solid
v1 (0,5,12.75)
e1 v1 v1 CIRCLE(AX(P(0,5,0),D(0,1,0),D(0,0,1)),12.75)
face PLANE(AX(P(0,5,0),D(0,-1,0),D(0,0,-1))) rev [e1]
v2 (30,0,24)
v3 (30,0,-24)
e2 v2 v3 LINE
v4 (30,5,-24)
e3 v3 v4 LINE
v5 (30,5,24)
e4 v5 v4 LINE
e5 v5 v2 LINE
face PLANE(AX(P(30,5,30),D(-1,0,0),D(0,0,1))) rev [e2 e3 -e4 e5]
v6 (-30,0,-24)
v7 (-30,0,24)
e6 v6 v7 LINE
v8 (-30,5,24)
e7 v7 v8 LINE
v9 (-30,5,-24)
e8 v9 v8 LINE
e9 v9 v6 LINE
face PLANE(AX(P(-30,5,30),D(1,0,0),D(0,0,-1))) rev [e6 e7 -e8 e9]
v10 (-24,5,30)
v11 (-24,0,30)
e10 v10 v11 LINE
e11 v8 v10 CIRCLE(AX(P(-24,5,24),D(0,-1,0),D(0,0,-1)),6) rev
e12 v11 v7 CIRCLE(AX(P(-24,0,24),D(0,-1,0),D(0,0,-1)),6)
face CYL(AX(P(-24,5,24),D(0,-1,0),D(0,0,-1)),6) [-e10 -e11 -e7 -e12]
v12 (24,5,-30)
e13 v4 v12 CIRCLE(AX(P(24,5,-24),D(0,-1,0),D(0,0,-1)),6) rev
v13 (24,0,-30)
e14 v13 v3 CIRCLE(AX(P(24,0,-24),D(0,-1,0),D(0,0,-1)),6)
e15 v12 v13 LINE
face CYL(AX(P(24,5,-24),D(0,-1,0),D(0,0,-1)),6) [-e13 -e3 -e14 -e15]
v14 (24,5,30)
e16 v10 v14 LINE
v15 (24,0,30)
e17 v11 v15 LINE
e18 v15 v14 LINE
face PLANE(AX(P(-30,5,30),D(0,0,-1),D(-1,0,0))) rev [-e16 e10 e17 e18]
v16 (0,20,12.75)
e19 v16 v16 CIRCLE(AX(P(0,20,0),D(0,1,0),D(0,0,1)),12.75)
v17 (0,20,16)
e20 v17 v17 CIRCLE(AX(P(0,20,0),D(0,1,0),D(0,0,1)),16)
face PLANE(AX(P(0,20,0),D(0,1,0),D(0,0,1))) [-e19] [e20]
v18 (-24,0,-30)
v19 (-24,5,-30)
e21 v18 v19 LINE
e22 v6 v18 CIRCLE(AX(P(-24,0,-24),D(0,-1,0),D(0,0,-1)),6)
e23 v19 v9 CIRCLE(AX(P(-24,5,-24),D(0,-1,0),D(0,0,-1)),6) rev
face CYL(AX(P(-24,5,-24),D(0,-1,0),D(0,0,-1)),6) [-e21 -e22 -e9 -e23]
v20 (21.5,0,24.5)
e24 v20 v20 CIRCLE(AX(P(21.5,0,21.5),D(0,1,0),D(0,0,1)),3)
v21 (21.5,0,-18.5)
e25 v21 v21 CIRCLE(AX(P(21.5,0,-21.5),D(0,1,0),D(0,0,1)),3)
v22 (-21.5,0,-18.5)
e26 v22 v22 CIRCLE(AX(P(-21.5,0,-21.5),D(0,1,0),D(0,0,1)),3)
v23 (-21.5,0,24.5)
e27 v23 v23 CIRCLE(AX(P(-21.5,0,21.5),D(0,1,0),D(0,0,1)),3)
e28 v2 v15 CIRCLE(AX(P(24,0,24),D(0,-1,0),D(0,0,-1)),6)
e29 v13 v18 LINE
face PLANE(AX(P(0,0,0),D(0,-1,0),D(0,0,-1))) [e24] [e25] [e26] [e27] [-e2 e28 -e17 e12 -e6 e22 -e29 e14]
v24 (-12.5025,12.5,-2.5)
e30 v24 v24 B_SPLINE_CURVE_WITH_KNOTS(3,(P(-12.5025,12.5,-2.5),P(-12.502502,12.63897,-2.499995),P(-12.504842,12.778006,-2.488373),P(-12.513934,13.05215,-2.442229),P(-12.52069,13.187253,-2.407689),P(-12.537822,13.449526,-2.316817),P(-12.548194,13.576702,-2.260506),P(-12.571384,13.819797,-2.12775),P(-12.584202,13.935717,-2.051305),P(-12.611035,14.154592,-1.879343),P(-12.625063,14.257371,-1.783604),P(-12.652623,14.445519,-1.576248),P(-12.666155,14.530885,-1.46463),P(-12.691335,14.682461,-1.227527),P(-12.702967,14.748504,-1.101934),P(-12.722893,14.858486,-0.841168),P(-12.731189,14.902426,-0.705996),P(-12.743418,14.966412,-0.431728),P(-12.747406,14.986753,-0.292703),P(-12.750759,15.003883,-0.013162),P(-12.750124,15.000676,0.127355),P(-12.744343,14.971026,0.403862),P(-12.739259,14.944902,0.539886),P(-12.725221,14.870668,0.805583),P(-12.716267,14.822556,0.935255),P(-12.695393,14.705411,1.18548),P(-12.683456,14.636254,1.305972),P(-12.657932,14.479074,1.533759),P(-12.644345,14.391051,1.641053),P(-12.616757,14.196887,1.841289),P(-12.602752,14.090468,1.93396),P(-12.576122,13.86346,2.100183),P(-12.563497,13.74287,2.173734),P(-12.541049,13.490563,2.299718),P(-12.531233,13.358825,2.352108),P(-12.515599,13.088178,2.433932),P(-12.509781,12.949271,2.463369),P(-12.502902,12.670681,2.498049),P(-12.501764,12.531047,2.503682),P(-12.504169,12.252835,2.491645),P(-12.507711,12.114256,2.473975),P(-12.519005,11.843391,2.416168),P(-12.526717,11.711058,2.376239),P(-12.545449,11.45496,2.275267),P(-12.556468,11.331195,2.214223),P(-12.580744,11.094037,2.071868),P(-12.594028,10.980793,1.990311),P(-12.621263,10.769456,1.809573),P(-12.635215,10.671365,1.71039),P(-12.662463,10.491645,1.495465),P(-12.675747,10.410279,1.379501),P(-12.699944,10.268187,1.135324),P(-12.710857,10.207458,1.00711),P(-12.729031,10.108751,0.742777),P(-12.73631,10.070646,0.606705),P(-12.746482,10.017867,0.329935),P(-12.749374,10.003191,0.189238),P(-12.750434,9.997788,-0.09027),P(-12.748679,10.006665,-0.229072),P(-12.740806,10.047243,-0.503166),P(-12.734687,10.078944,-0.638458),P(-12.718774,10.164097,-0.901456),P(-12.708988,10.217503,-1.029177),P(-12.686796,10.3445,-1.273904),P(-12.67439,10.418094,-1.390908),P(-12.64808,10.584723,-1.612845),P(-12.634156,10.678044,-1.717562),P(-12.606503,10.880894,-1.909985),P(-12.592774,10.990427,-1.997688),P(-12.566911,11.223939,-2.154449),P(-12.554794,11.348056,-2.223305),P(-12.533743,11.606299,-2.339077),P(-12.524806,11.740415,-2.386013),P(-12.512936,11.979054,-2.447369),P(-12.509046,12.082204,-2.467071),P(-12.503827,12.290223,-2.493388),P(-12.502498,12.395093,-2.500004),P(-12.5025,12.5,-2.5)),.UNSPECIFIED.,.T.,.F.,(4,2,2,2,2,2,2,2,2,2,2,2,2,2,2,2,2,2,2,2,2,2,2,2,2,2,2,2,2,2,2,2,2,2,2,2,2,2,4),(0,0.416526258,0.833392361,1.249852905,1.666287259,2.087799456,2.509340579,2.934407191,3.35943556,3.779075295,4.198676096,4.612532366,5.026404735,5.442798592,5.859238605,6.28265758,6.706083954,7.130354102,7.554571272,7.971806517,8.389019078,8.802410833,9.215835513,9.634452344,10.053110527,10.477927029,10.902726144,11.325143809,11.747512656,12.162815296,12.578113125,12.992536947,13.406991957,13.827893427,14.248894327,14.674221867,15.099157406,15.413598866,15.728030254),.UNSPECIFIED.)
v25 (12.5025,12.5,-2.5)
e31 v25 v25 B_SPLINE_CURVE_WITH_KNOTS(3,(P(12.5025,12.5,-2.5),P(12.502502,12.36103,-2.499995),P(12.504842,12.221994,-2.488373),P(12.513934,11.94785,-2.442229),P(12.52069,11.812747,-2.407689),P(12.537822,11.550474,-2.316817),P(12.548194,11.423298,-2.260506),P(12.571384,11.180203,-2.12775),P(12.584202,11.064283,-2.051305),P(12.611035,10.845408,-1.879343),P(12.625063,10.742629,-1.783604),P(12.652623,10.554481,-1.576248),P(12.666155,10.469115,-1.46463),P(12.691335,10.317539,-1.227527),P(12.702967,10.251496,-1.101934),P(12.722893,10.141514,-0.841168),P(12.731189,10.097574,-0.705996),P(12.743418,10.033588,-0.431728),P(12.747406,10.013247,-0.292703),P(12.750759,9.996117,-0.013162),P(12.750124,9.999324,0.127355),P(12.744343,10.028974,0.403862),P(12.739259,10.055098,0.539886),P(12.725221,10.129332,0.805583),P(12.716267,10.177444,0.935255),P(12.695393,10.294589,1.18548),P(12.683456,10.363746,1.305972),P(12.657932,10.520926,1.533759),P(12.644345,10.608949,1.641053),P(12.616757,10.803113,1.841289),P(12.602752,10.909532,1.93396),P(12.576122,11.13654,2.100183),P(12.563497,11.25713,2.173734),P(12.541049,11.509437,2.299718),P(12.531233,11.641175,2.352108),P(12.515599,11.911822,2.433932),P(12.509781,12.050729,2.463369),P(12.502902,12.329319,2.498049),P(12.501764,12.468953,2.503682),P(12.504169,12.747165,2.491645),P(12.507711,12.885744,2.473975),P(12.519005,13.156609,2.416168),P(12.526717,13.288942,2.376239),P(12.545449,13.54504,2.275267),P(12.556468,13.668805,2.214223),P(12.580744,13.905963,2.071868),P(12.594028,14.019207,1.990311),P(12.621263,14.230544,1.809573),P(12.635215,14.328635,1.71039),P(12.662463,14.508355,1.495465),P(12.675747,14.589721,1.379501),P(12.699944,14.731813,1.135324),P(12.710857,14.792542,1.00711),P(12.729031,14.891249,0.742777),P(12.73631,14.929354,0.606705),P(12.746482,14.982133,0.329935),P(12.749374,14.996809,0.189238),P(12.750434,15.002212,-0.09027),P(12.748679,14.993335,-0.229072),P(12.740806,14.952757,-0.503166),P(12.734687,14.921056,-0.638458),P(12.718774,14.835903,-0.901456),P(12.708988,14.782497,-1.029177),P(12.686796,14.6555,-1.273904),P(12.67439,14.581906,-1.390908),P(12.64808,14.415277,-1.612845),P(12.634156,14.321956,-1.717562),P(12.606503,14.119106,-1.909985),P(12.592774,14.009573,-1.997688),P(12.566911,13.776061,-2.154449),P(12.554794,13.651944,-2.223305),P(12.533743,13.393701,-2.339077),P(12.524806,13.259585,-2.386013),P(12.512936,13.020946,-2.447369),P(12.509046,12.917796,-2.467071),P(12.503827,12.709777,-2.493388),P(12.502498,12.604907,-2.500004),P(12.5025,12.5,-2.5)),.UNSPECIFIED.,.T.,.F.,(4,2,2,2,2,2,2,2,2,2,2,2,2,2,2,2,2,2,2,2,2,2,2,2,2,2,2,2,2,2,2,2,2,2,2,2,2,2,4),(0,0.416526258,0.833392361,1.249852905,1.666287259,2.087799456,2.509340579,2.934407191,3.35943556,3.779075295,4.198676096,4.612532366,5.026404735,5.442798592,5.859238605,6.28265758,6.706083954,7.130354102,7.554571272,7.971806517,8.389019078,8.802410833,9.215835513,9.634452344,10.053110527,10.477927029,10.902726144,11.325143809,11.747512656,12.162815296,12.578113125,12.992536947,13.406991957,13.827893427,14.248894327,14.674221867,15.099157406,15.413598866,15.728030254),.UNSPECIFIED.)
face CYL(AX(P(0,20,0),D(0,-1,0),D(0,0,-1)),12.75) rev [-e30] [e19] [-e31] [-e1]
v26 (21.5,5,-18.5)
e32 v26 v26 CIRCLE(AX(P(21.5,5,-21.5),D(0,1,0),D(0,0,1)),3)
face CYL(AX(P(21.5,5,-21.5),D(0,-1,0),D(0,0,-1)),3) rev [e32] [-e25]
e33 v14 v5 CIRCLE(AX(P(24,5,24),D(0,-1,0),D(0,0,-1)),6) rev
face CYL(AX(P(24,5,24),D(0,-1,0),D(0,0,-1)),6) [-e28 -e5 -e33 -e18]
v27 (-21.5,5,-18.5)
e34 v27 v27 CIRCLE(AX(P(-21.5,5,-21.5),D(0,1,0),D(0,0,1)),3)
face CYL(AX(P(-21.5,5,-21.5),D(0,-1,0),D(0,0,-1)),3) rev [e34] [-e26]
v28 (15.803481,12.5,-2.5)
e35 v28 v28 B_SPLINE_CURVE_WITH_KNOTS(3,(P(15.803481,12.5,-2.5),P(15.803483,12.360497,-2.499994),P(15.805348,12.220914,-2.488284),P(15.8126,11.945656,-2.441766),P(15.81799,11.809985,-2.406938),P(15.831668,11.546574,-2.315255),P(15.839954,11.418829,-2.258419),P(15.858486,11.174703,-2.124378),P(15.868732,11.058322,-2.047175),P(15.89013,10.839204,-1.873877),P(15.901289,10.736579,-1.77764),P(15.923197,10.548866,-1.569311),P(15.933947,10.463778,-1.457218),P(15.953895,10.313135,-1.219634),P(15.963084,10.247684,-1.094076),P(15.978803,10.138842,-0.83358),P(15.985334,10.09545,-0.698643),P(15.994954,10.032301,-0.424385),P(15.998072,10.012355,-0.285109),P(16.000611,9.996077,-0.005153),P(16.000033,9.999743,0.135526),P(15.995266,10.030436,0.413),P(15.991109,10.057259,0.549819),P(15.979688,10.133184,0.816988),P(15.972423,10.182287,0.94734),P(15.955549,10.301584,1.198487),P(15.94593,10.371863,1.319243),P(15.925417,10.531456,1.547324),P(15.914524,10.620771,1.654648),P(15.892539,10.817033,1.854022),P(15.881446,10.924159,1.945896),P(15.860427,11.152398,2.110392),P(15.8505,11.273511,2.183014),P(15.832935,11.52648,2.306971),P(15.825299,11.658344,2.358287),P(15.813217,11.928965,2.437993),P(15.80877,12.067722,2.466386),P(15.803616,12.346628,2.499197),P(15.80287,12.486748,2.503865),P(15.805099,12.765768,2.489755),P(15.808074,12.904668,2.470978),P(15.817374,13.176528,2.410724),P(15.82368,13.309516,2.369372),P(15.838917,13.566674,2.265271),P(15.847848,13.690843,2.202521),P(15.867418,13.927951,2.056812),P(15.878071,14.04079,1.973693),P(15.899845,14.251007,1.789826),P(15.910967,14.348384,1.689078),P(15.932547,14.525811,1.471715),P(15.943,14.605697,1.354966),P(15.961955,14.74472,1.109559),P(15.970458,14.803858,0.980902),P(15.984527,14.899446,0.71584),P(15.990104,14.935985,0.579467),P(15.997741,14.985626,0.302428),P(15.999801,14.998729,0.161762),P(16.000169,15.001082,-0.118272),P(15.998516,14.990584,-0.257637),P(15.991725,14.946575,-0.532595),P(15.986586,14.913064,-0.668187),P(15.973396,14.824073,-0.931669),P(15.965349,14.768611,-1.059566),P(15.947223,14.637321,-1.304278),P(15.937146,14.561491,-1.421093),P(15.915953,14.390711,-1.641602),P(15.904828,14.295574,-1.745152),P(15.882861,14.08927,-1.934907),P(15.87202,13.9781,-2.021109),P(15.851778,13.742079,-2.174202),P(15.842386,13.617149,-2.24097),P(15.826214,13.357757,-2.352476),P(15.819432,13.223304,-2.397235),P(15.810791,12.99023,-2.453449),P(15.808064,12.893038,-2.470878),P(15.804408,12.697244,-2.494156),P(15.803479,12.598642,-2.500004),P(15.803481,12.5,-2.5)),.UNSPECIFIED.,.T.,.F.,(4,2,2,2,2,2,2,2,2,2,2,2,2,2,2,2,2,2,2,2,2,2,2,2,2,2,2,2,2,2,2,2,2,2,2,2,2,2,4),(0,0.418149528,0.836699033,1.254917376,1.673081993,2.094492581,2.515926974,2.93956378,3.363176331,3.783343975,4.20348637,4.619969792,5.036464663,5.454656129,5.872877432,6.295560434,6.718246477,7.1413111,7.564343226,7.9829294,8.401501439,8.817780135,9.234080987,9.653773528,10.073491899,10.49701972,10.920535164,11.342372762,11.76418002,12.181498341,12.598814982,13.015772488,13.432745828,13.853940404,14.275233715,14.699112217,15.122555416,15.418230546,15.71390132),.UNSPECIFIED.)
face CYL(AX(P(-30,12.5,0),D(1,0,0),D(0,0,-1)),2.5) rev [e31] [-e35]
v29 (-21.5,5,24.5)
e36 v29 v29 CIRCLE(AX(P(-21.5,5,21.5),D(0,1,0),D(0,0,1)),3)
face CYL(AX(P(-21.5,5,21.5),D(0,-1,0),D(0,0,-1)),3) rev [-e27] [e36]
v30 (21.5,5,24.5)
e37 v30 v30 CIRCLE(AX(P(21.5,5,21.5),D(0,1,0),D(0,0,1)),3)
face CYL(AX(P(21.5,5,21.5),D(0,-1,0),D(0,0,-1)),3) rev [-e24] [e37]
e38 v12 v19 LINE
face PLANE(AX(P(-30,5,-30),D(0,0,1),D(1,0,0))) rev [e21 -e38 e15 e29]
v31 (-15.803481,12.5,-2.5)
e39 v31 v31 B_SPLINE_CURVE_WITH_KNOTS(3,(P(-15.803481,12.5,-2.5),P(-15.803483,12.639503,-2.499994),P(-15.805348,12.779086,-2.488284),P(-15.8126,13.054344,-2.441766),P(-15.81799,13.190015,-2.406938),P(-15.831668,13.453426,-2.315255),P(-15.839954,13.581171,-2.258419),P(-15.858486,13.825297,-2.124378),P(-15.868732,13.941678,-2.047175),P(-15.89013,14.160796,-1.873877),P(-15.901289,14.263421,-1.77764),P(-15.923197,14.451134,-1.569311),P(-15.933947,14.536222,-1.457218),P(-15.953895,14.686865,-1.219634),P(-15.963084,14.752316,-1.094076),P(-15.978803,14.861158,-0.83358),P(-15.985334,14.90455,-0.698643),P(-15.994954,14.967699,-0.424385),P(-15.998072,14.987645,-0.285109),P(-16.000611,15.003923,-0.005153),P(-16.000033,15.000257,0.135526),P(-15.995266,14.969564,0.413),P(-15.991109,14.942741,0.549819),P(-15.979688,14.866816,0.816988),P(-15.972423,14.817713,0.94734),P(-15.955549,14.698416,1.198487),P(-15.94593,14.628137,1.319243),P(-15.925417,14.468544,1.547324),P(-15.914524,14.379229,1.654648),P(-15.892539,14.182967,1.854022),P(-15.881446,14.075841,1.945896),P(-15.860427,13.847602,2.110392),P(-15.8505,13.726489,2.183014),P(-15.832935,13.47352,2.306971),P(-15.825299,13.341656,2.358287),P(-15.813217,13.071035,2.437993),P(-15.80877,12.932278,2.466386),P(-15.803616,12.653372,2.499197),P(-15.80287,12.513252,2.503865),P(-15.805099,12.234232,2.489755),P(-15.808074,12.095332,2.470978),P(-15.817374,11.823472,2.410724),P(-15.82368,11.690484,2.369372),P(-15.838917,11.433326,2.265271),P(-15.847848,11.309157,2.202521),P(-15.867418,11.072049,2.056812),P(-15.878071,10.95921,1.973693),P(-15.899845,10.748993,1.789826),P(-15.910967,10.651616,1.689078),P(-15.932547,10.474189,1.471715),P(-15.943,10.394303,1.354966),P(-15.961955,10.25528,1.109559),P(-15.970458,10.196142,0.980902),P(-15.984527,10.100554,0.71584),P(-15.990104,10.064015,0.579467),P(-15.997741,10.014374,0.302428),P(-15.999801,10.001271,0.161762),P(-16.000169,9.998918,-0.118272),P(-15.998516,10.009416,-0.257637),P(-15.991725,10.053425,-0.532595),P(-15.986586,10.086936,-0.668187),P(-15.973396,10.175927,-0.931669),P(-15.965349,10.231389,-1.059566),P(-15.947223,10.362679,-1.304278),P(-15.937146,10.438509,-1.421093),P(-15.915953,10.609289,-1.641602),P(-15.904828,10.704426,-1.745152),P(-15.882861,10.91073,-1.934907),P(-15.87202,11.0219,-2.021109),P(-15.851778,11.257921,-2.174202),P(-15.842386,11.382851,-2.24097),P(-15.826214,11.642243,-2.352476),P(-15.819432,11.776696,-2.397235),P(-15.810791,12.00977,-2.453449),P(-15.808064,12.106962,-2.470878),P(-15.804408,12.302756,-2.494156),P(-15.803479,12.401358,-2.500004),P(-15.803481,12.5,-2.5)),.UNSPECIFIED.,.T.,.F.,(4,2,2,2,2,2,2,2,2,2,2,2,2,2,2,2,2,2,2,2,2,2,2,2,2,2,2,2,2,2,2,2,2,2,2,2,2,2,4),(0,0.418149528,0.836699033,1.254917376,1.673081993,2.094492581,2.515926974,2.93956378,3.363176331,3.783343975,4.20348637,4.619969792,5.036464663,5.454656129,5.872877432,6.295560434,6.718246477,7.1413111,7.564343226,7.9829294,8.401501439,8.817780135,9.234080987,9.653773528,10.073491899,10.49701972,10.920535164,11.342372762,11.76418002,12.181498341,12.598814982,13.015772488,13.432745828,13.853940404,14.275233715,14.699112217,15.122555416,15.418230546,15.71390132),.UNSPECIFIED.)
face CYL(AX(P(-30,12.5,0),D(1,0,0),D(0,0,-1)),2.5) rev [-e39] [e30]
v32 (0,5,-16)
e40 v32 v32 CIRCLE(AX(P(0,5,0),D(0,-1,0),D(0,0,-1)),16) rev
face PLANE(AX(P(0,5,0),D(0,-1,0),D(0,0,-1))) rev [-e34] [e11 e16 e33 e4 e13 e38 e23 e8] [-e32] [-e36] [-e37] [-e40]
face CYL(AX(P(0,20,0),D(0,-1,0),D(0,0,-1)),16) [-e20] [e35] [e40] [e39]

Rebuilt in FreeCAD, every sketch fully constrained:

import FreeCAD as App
import Part
import Sketcher
Q = App.Units.Quantity


def edges_at(feature, points):
    """Names of the edges that pass closest to the given points."""
    edges = feature.Shape.Edges
    near = lambda p: min(range(len(edges)), key=lambda i: edges[i].distToShape(Part.Vertex(*p))[0])
    return sorted({f"Edge{near(p) + 1}" for p in points})


def add_polygon(sketch, points):
    """Adds a closed chain of lines whose ends are joined by coincident constraints."""
    first, n = sketch.GeometryCount, len(points)
    for a, b in zip(points, points[1:] + points[:1]):
        sketch.addGeometry(Part.LineSegment(App.Vector(*a, 0), App.Vector(*b, 0)), False)
    for i in range(n):
        sketch.addConstraint(Sketcher.Constraint("Coincident", first + i, 2, first + (i + 1) % n, 1))

doc = App.newDocument("Part")
params = doc.addObject("Spreadsheet::Sheet", "Params")
for row, (alias, value) in enumerate([
    ("sketch1_diameter", "6 mm"),
    ("sketch1_width", "60 mm"),
    ("pad1_length", "5 mm"),
    ("fillet_radius", "6 mm"),
    ("sketch2_diameter", "32 mm"),
    ("sketch2_diameter2", "25.5 mm"),
    ("pad2_length", "15 mm"),
    ("sketch3_diameter", "5 mm"),
], start=1):
    params.set(f"A{row}", alias)
    params.set(f"B{row}", "=" + value)
    params.setAlias(f"B{row}", alias)

body = doc.addObject("PartDesign::Body", "Body")

# Sketch on XZ plane
sketch1 = body.newObject("Sketcher::SketchObject", "Sketch")
sketch1.AttachmentSupport = (doc.getObject("XZ_Plane"), [""])
sketch1.MapMode = "FlatFace"
add_polygon(sketch1, [(-30, -30), (-30, 30), (30, 30), (30, -30)])  # lines 0-3
sketch1.addGeometry(Part.Circle(App.Vector(-21.5, 21.5, 0), App.Vector(0, 0, 1), 3), False)  # 4
sketch1.addGeometry(Part.Circle(App.Vector(21.5, 21.5, 0), App.Vector(0, 0, 1), 3), False)  # 5
sketch1.addGeometry(Part.Circle(App.Vector(-21.5, -21.5, 0), App.Vector(0, 0, 1), 3), False)  # 6
sketch1.addGeometry(Part.Circle(App.Vector(21.5, -21.5, 0), App.Vector(0, 0, 1), 3), False)  # 7
sketch1.addConstraint(Sketcher.Constraint("Vertical", 0))
sketch1.addConstraint(Sketcher.Constraint("Horizontal", 1))
sketch1.addConstraint(Sketcher.Constraint("Vertical", 2))
sketch1.addConstraint(Sketcher.Constraint("Horizontal", 3))
sketch1.addConstraint(Sketcher.Constraint("Equal", 4, 5))
sketch1.addConstraint(Sketcher.Constraint("Equal", 5, 6))
sketch1.addConstraint(Sketcher.Constraint("Equal", 6, 7))
sketch1.addConstraint(Sketcher.Constraint("Symmetric", 5, 3, 6, 3, -1, 1))
sketch1.addConstraint(Sketcher.Constraint("Symmetric", 4, 3, 7, 3, -1, 1))
sketch1.addConstraint(Sketcher.Constraint("Symmetric", 0, 2, 2, 2, -1, 1))
sketch1.addConstraint(Sketcher.Constraint("Symmetric", 4, 3, 5, 3, -2))
sketch1.addConstraint(Sketcher.Constraint("Equal", 3, 0))
sketch1.addConstraint(Sketcher.Constraint("Diameter", 4, Q("6 mm")))
sketch1.addConstraint(Sketcher.Constraint("DistanceX", 1, 1, 1, 2, Q("60 mm")))
sketch1.addConstraint(Sketcher.Constraint("DistanceX", 4, 3, 5, 3, Q("43 mm")))
sketch1.addConstraint(Sketcher.Constraint("DistanceY", 6, 3, 4, 3, Q("43 mm")))
sketch1.setExpression("Constraints[16]", "Params.sketch1_diameter")
sketch1.setExpression("Constraints[17]", "Params.sketch1_width")
pad1 = body.newObject("PartDesign::Pad", "Pad")
pad1.Profile = sketch1
pad1.setExpression("Length", "Params.pad1_length")
pad1.Reversed = True
doc.recompute()

fillet = body.newObject("PartDesign::Fillet", "Fillet")
fillet.Base = (pad1, edges_at(pad1, [
    (30, 2.5, 30),
    (-30, 2.5, 30),
    (-30, 2.5, -30),
    (30, 2.5, -30),
]))
fillet.setExpression("Radius", "Params.fillet_radius")

# Sketch on XZ plane
sketch2 = body.newObject("Sketcher::SketchObject", "Sketch001")
sketch2.AttachmentSupport = (doc.getObject("XZ_Plane"), [""])
sketch2.MapMode = "FlatFace"
sketch2.AttachmentOffset = App.Placement(App.Vector(0, 0, -5), App.Rotation())
sketch2.addGeometry(Part.Circle(App.Vector(0, 0, 0), App.Vector(0, 0, 1), 16), False)
sketch2.addGeometry(Part.Circle(App.Vector(0, 0, 0), App.Vector(0, 0, 1), 13), False)
sketch2.addConstraint(Sketcher.Constraint("Coincident", 0, 3, -1, 1))
sketch2.addConstraint(Sketcher.Constraint("Coincident", 1, 3, -1, 1))
sketch2.addConstraint(Sketcher.Constraint("Diameter", 0, Q("32 mm")))
sketch2.addConstraint(Sketcher.Constraint("Diameter", 1, Q("25.5 mm")))
sketch2.setExpression("Constraints[2]", "Params.sketch2_diameter")
sketch2.setExpression("Constraints[3]", "Params.sketch2_diameter2")
pad2 = body.newObject("PartDesign::Pad", "Pad001")
pad2.Profile = sketch2
pad2.setExpression("Length", "Params.pad2_length")
pad2.Reversed = True

# Sketch on YZ plane
sketch3 = body.newObject("Sketcher::SketchObject", "Sketch002")
sketch3.AttachmentSupport = (doc.getObject("YZ_Plane"), [""])
sketch3.MapMode = "FlatFace"
sketch3.addGeometry(Part.Circle(App.Vector(12.5, 0, 0), App.Vector(0, 0, 1), 2.5), False)
sketch3.addConstraint(Sketcher.Constraint("PointOnObject", 0, 3, -1))
sketch3.addConstraint(Sketcher.Constraint("Diameter", 0, Q("5 mm")))
sketch3.addConstraint(Sketcher.Constraint("DistanceX", -1, 1, 0, 3, Q("12.5 mm")))
sketch3.setExpression("Constraints[1]", "Params.sketch3_diameter")
pocket1 = body.newObject("PartDesign::Pocket", "Pocket")
pocket1.Profile = sketch3
pocket1.Type = "ThroughAll"
pocket1.Midplane = True

doc.recompute()
